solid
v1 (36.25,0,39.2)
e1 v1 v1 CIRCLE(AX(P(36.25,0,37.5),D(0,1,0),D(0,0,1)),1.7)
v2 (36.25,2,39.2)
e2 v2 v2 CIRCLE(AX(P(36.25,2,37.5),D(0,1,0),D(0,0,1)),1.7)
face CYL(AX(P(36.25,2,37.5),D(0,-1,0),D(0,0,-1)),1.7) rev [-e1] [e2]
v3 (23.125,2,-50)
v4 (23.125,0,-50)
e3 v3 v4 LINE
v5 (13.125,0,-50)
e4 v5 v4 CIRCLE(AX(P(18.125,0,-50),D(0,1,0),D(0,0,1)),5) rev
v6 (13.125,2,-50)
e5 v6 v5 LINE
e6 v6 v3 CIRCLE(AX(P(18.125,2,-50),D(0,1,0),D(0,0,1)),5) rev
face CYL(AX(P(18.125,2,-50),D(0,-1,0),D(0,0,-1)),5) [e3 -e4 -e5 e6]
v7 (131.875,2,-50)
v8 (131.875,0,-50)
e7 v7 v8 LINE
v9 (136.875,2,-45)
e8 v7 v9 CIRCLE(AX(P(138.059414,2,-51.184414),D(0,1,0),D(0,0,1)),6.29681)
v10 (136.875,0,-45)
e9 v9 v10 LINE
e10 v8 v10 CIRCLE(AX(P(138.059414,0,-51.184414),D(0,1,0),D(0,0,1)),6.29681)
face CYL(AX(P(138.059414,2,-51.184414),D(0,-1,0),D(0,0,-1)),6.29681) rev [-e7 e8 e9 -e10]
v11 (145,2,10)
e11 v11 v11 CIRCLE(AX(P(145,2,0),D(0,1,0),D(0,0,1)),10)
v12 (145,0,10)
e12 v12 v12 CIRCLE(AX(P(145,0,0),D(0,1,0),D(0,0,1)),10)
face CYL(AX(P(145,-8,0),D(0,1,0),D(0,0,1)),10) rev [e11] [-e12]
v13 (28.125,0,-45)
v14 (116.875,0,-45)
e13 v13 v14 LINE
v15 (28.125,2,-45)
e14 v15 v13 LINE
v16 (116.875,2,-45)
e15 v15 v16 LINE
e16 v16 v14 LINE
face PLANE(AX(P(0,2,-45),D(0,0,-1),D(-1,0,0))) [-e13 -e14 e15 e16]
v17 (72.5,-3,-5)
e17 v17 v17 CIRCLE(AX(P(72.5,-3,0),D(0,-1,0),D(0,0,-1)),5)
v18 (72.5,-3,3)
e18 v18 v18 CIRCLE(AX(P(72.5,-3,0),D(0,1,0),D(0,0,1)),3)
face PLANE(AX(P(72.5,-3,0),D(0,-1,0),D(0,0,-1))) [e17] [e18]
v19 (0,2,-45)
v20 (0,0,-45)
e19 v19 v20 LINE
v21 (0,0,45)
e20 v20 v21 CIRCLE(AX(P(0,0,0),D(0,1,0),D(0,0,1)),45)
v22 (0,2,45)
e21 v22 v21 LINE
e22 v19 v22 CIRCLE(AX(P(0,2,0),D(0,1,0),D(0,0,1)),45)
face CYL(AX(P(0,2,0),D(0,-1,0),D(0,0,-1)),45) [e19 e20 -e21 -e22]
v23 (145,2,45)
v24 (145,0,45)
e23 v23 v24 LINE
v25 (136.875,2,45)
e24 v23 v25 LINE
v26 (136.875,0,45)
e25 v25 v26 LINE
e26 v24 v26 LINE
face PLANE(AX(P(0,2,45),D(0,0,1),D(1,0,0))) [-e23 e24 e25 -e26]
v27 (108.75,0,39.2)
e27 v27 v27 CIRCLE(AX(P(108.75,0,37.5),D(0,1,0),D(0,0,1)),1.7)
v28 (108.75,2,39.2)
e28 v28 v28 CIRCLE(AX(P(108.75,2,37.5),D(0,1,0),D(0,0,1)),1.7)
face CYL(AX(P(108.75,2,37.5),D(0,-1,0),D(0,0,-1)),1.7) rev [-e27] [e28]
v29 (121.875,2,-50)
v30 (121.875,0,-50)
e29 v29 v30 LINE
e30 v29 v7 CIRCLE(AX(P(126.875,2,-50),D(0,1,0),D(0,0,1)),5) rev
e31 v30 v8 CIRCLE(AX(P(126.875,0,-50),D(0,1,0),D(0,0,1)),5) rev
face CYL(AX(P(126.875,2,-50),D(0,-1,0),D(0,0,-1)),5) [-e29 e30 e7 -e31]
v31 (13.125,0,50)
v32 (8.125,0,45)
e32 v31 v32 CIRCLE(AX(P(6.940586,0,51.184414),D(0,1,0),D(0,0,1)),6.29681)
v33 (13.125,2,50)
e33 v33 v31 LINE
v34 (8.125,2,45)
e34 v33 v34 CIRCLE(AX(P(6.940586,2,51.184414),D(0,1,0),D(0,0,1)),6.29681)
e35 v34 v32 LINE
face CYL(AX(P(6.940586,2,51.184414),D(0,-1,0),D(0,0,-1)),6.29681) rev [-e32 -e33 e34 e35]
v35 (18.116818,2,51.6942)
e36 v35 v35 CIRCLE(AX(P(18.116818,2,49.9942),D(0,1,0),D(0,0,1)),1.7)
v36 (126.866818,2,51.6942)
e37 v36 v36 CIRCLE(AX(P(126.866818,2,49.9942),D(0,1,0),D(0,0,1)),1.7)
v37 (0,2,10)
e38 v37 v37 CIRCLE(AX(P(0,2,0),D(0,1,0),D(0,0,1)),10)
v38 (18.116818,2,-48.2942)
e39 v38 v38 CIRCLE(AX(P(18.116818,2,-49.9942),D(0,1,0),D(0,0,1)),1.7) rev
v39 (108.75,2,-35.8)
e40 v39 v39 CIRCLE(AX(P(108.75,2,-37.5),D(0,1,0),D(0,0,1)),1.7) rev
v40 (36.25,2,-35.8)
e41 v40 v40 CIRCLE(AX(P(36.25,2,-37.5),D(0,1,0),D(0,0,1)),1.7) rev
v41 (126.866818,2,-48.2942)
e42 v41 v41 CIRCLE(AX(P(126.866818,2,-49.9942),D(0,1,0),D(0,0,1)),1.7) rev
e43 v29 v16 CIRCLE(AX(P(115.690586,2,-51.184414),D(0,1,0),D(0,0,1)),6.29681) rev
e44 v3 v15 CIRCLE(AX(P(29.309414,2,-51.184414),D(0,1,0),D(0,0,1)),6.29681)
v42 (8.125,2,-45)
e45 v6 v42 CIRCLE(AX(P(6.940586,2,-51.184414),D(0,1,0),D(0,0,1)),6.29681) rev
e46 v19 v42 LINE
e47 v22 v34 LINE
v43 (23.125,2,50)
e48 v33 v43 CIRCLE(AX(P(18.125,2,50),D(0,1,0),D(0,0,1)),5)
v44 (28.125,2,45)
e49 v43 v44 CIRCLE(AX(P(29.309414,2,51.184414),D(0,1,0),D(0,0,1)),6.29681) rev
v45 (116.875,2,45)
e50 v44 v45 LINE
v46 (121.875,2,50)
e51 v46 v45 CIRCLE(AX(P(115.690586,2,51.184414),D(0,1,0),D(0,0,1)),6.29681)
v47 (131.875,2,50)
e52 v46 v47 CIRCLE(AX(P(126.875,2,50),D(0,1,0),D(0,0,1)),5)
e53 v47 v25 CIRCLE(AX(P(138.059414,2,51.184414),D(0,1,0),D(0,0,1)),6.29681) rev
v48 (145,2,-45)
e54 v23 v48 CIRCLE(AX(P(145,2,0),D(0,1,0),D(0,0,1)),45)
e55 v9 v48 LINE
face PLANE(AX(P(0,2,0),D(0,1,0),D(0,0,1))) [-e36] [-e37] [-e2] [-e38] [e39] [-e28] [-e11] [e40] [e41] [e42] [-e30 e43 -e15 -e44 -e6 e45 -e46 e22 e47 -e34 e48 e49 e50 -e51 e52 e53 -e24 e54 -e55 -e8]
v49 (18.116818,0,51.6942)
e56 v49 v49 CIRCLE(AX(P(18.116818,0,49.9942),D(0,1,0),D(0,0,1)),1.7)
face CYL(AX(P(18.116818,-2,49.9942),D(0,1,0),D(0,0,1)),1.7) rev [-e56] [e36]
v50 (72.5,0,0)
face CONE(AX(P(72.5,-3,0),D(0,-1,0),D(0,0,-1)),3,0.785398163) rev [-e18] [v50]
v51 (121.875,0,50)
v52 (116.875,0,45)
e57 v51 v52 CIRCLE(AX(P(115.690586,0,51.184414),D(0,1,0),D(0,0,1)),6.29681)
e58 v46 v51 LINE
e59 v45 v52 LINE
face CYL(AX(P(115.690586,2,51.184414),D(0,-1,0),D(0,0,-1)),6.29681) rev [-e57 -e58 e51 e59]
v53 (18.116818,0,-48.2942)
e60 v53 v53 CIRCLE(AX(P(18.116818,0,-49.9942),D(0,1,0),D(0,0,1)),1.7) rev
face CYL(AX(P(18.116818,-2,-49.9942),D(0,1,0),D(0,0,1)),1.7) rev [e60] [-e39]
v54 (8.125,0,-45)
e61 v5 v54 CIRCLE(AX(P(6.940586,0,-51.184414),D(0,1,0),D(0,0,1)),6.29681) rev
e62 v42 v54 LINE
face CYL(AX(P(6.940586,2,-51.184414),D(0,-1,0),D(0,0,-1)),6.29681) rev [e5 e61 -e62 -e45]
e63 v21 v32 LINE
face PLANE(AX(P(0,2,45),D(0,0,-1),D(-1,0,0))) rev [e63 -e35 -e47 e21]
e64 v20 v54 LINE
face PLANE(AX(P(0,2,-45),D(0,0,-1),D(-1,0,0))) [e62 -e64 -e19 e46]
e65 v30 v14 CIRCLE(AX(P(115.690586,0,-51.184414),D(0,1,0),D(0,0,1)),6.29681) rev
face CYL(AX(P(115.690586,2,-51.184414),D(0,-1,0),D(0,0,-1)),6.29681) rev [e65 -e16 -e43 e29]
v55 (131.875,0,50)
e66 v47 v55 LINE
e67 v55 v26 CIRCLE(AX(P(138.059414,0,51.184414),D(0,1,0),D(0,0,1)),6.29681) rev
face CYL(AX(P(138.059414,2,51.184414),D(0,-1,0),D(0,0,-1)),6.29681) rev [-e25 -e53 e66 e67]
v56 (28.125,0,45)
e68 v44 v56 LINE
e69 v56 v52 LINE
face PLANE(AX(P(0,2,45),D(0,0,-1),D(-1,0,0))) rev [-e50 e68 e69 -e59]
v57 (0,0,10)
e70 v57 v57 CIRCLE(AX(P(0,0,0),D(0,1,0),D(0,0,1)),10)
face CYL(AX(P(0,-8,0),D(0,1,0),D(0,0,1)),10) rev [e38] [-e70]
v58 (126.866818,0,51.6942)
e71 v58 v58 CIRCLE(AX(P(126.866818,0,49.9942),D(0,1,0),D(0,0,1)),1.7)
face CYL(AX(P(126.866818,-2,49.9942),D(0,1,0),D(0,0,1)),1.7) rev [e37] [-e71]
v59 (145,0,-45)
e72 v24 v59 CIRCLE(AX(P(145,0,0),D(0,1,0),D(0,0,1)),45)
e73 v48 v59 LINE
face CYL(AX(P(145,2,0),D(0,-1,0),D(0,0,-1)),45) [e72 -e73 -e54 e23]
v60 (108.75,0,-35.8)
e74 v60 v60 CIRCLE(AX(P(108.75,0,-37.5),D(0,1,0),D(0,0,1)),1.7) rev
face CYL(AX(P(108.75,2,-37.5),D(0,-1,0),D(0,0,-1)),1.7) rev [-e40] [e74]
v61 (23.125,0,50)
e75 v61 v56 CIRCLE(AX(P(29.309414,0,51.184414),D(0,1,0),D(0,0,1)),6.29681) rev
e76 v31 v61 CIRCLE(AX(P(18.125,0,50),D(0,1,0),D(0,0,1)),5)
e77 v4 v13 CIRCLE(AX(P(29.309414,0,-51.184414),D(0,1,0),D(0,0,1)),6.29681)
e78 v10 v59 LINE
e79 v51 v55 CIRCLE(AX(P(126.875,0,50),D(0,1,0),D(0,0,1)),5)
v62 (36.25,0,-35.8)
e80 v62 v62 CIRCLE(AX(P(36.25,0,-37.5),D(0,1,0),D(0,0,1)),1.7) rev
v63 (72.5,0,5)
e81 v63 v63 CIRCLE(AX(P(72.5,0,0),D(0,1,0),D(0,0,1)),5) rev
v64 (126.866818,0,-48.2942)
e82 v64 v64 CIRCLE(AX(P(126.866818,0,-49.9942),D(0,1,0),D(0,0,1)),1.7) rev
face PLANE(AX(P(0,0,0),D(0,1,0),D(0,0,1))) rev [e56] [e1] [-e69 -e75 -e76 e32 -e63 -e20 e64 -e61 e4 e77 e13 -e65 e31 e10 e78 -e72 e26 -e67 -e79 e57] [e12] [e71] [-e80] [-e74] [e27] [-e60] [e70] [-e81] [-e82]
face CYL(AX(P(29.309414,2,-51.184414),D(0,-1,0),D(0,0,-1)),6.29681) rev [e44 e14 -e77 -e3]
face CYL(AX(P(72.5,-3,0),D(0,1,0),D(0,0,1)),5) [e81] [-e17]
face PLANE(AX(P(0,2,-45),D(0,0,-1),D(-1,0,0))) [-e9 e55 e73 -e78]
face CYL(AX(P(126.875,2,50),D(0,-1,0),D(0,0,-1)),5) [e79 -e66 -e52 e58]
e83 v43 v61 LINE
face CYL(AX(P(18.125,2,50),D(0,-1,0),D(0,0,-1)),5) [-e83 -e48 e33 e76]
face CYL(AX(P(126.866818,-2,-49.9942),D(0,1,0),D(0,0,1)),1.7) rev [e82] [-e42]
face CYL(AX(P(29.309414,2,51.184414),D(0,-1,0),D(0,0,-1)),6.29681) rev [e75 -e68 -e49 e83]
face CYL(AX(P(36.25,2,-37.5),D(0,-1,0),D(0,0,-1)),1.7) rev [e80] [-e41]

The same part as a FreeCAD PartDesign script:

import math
import FreeCAD as App
import Part
import Sketcher
from FreeCAD import Vector
Q = App.Units.Quantity

doc = App.newDocument("Part")
body = doc.addObject("PartDesign::Body", "Body")

# Sketch on XZ plane
sketch1 = doc.addObject("Sketcher::SketchObject", "Sketch")
body.addObject(sketch1)
sketch1.AttachmentSupport = (doc.XZ_Plane, [""])
sketch1.MapMode = "FlatFace"
sketch1.addGeometry(Part.LineSegment(Vector(8.1, -45, 0), Vector(0, -45, 0)), False)
sketch1.addGeometry(Part.ArcOfCircle(Part.Circle(Vector(0, 0, 0), Vector(0, 0, 1), 45), math.radians(90), math.radians(270)), False)
sketch1.addGeometry(Part.LineSegment(Vector(0, 45, 0), Vector(8.1, 45, 0)), False)
sketch1.addGeometry(Part.ArcOfCircle(Part.Circle(Vector(6.9, 51.2, 0), Vector(0, 0, 1), 6.3), math.radians(-79), math.radians(-11)), False)
sketch1.addGeometry(Part.ArcOfCircle(Part.Circle(Vector(18.1, 50, 0), Vector(0, 0, 1), 5), math.radians(0), math.radians(180)), False)
sketch1.addGeometry(Part.ArcOfCircle(Part.Circle(Vector(29.3, 51.2, 0), Vector(0, 0, 1), 6.3), math.radians(-169), math.radians(-101)), False)
sketch1.addGeometry(Part.LineSegment(Vector(28.1, 45, 0), Vector(116.9, 45, 0)), False)
sketch1.addGeometry(Part.ArcOfCircle(Part.Circle(Vector(115.7, 51.2, 0), Vector(0, 0, 1), 6.3), math.radians(-79), math.radians(-11)), False)
sketch1.addGeometry(Part.ArcOfCircle(Part.Circle(Vector(126.9, 50, 0), Vector(0, 0, 1), 5), math.radians(0), math.radians(180)), False)
sketch1.addGeometry(Part.ArcOfCircle(Part.Circle(Vector(138.1, 51.2, 0), Vector(0, 0, 1), 6.3), math.radians(-169), math.radians(-101)), False)
sketch1.addGeometry(Part.LineSegment(Vector(136.9, 45, 0), Vector(145, 45, 0)), False)
sketch1.addGeometry(Part.ArcOfCircle(Part.Circle(Vector(145, 0, 0), Vector(0, 0, 1), 45), math.radians(-90), math.radians(90)), False)
sketch1.addGeometry(Part.LineSegment(Vector(145, -45, 0), Vector(136.9, -45, 0)), False)
sketch1.addGeometry(Part.ArcOfCircle(Part.Circle(Vector(138.1, -51.2, 0), Vector(0, 0, 1), 6.3), math.radians(101), math.radians(169)), False)
sketch1.addGeometry(Part.ArcOfCircle(Part.Circle(Vector(126.9, -50, 0), Vector(0, 0, 1), 5), math.radians(180), math.radians(360)), False)
sketch1.addGeometry(Part.ArcOfCircle(Part.Circle(Vector(115.7, -51.2, 0), Vector(0, 0, 1), 6.3), math.radians(11), math.radians(79)), False)
sketch1.addGeometry(Part.LineSegment(Vector(116.9, -45, 0), Vector(28.1, -45, 0)), False)
sketch1.addGeometry(Part.ArcOfCircle(Part.Circle(Vector(29.3, -51.2, 0), Vector(0, 0, 1), 6.3), math.radians(101), math.radians(169)), False)
sketch1.addGeometry(Part.ArcOfCircle(Part.Circle(Vector(18.1, -50, 0), Vector(0, 0, 1), 5), math.radians(180), math.radians(360)), False)
sketch1.addGeometry(Part.ArcOfCircle(Part.Circle(Vector(6.9, -51.2, 0), Vector(0, 0, 1), 6.3), math.radians(11), math.radians(79)), False)
sketch1.addGeometry(Part.Circle(Vector(108.8, 37.5, 0), Vector(0, 0, 1), 1.7), False)
sketch1.addGeometry(Part.Circle(Vector(36.2, 37.5, 0), Vector(0, 0, 1), 1.7), False)
sketch1.addGeometry(Part.Circle(Vector(108.8, -37.5, 0), Vector(0, 0, 1), 1.7), False)
sketch1.addGeometry(Part.Circle(Vector(36.2, -37.5, 0), Vector(0, 0, 1), 1.7), False)
sketch1.addConstraint(Sketcher.Constraint("Tangent", 0, 2, 1, 2))
sketch1.addConstraint(Sketcher.Constraint("Tangent", 1, 1, 2, 1))
sketch1.addConstraint(Sketcher.Constraint("Coincident", 2, 2, 3, 1))
sketch1.addConstraint(Sketcher.Constraint("Coincident", 3, 2, 4, 2))
sketch1.addConstraint(Sketcher.Constraint("Coincident", 4, 1, 5, 1))
sketch1.addConstraint(Sketcher.Constraint("Coincident", 5, 2, 6, 1))
sketch1.addConstraint(Sketcher.Constraint("Coincident", 6, 2, 7, 1))
sketch1.addConstraint(Sketcher.Constraint("Coincident", 7, 2, 8, 2))
sketch1.addConstraint(Sketcher.Constraint("Coincident", 8, 1, 9, 1))
sketch1.addConstraint(Sketcher.Constraint("Coincident", 9, 2, 10, 1))
sketch1.addConstraint(Sketcher.Constraint("Tangent", 10, 2, 11, 2))
sketch1.addConstraint(Sketcher.Constraint("Tangent", 11, 1, 12, 1))
sketch1.addConstraint(Sketcher.Constraint("Coincident", 12, 2, 13, 1))
sketch1.addConstraint(Sketcher.Constraint("Coincident", 13, 2, 14, 2))
sketch1.addConstraint(Sketcher.Constraint("Coincident", 14, 1, 15, 1))
sketch1.addConstraint(Sketcher.Constraint("Coincident", 15, 2, 16, 1))
sketch1.addConstraint(Sketcher.Constraint("Coincident", 16, 2, 17, 1))
sketch1.addConstraint(Sketcher.Constraint("Coincident", 17, 2, 18, 2))
sketch1.addConstraint(Sketcher.Constraint("Coincident", 18, 1, 19, 1))
sketch1.addConstraint(Sketcher.Constraint("Coincident", 19, 2, 0, 1))
sketch1.addConstraint(Sketcher.Constraint("Horizontal", 0))
sketch1.addConstraint(Sketcher.Constraint("Horizontal", 2))
sketch1.addConstraint(Sketcher.Constraint("Horizontal", 6))
sketch1.addConstraint(Sketcher.Constraint("Horizontal", 10))
sketch1.addConstraint(Sketcher.Constraint("Horizontal", 12))
sketch1.addConstraint(Sketcher.Constraint("Horizontal", 16))
sketch1.addConstraint(Sketcher.Constraint("Coincident", 1, 3, -1, 1))
sketch1.addConstraint(Sketcher.Constraint("Equal", 3, 5))
sketch1.addConstraint(Sketcher.Constraint("Equal", 5, 7))
sketch1.addConstraint(Sketcher.Constraint("Equal", 4, 8))
sketch1.addConstraint(Sketcher.Constraint("Equal", 7, 9))
sketch1.addConstraint(Sketcher.Constraint("Equal", 1, 11))
sketch1.addConstraint(Sketcher.Constraint("Equal", 9, 13))
sketch1.addConstraint(Sketcher.Constraint("Equal", 8, 14))
sketch1.addConstraint(Sketcher.Constraint("Equal", 13, 15))
sketch1.addConstraint(Sketcher.Constraint("Equal", 15, 17))
sketch1.addConstraint(Sketcher.Constraint("Equal", 14, 18))
sketch1.addConstraint(Sketcher.Constraint("Equal", 17, 19))
sketch1.addConstraint(Sketcher.Constraint("Equal", 20, 21))
sketch1.addConstraint(Sketcher.Constraint("Equal", 21, 22))
sketch1.addConstraint(Sketcher.Constraint("Equal", 22, 23))
sketch1.addConstraint(Sketcher.Constraint("Symmetric", 9, 3, 13, 3, -1))
sketch1.addConstraint(Sketcher.Constraint("Symmetric", 8, 3, 14, 3, -1))
sketch1.addConstraint(Sketcher.Constraint("Symmetric", 7, 3, 15, 3, -1))
sketch1.addConstraint(Sketcher.Constraint("Symmetric", 5, 3, 17, 3, -1))
sketch1.addConstraint(Sketcher.Constraint("Symmetric", 4, 3, 18, 3, -1))
sketch1.addConstraint(Sketcher.Constraint("Symmetric", 3, 3, 19, 3, -1))
sketch1.addConstraint(Sketcher.Constraint("Symmetric", 20, 3, 22, 3, -1))
sketch1.addConstraint(Sketcher.Constraint("Symmetric", 21, 3, 23, 3, -1))
sketch1.addConstraint(Sketcher.Constraint("PointOnObject", 11, 3, -1))
sketch1.addConstraint(Sketcher.Constraint("Horizontal", 3, 3, 5, 3))
sketch1.addConstraint(Sketcher.Constraint("Horizontal", 5, 3, 7, 3))
sketch1.addConstraint(Sketcher.Constraint("Horizontal", 4, 3, 8, 3))
sketch1.addConstraint(Sketcher.Constraint("Horizontal", 7, 3, 9, 3))
sketch1.addConstraint(Sketcher.Constraint("Horizontal", 20, 3, 21, 3))
sketch1.addConstraint(Sketcher.Constraint("Horizontal", 8, 3, 3, 2))
sketch1.addConstraint(Sketcher.Constraint("Horizontal", 3, 2, 4, 1))
sketch1.addConstraint(Sketcher.Constraint("Horizontal", 2, 2, 5, 2))
sketch1.addConstraint(Sketcher.Constraint("Horizontal", 4, 1, 7, 2))
sketch1.addConstraint(Sketcher.Constraint("Horizontal", 7, 2, 8, 1))
sketch1.addConstraint(Sketcher.Constraint("Horizontal", 12, 2, 15, 2))
sketch1.addConstraint(Sketcher.Constraint("Equal", 2, 10))
sketch1.addConstraint(Sketcher.Constraint("Radius", 1, Q("45 mm")))
sketch1.addConstraint(Sketcher.Constraint("Radius", 4, Q("5 mm")))
sketch1.addConstraint(Sketcher.Constraint("Diameter", 20, Q("3.4 mm")))
sketch1.addConstraint(Sketcher.Constraint("DistanceY", -1, 1, 4, 3, Q("50 mm")))
sketch1.addConstraint(Sketcher.Constraint("DistanceX", -1, 1, 11, 3, Q("145 mm")))
sketch1.addConstraint(Sketcher.Constraint("DistanceY", 22, 3, 20, 3, Q("75 mm")))
sketch1.addConstraint(Sketcher.Constraint("DistanceX", 2, 2, 4, 3, Q("10 mm")))
sketch1.addConstraint(Sketcher.Constraint("DistanceX", 6, 1, 6, 2, Q("88.75 mm")))
sketch1.addConstraint(Sketcher.Constraint("DistanceX", 21, 3, 20, 3, Q("72.5 mm")))
sketch1.addConstraint(Sketcher.Constraint("DistanceX", -1, 1, 20, 3, Q("108.75 mm")))
sketch1.addConstraint(Sketcher.Constraint("Radius", 3, Q("6.29681 mm")))
pad1 = doc.addObject("PartDesign::Pad", "Pad")
body.addObject(pad1)
pad1.Profile = sketch1
pad1.Length = 2
pad1.Reversed = True

# Sketch on XZ plane
sketch2 = doc.addObject("Sketcher::SketchObject", "Sketch001")
body.addObject(sketch2)
sketch2.AttachmentSupport = (doc.XZ_Plane, [""])
sketch2.MapMode = "FlatFace"
sketch2.AttachmentOffset = App.Placement(Vector(0, 0, -2), App.Rotation())
sketch2.addGeometry(Part.Circle(Vector(18.1, 50, 0), Vector(0, 0, 1), 1.7), False)
sketch2.addGeometry(Part.Circle(Vector(126.9, 50, 0), Vector(0, 0, 1), 1.7), False)
sketch2.addGeometry(Part.Circle(Vector(126.9, -50, 0), Vector(0, 0, 1), 1.7), False)
sketch2.addGeometry(Part.Circle(Vector(18.1, -50, 0), Vector(0, 0, 1), 1.7), False)
sketch2.addConstraint(Sketcher.Constraint("Equal", 0, 1))
sketch2.addConstraint(Sketcher.Constraint("Equal", 1, 2))
sketch2.addConstraint(Sketcher.Constraint("Equal", 2, 3))
sketch2.addConstraint(Sketcher.Constraint("Symmetric", 1, 3, 2, 3, -1))
sketch2.addConstraint(Sketcher.Constraint("Symmetric", 0, 3, 3, 3, -1))
sketch2.addConstraint(Sketcher.Constraint("Horizontal", 0, 3, 1, 3))
sketch2.addConstraint(Sketcher.Constraint("Diameter", 0, Q("3.4 mm")))
sketch2.addConstraint(Sketcher.Constraint("DistanceX", 0, 3, 1, 3, Q("108.75 mm")))
sketch2.addConstraint(Sketcher.Constraint("DistanceY", -1, 1, 0, 3, Q("49.9942 mm")))
sketch2.addConstraint(Sketcher.Constraint("DistanceX", -1, 1, 0, 3, Q("18.116818 mm")))
pocket1 = doc.addObject("PartDesign::Pocket", "Pocket")
body.addObject(pocket1)
pocket1.Profile = sketch2
pocket1.Length = 4
pocket1.Reversed = True

# Sketch on XZ plane
sketch3 = doc.addObject("Sketcher::SketchObject", "Sketch002")
body.addObject(sketch3)
sketch3.AttachmentSupport = (doc.XZ_Plane, [""])
sketch3.MapMode = "FlatFace"
sketch3.AttachmentOffset = App.Placement(Vector(0, 0, -2), App.Rotation())
sketch3.addGeometry(Part.Circle(Vector(0, 0, 0), Vector(0, 0, 1), 10), False)
sketch3.addGeometry(Part.Circle(Vector(145, 0, 0), Vector(0, 0, 1), 10), False)
sketch3.addConstraint(Sketcher.Constraint("Coincident", 0, 3, -1, 1))
sketch3.addConstraint(Sketcher.Constraint("Equal", 0, 1))
sketch3.addConstraint(Sketcher.Constraint("PointOnObject", 1, 3, -1))
sketch3.addConstraint(Sketcher.Constraint("Diameter", 0, Q("20 mm")))
sketch3.addConstraint(Sketcher.Constraint("DistanceX", -1, 1, 1, 3, Q("145 mm")))
pocket2 = doc.addObject("PartDesign::Pocket", "Pocket001")
body.addObject(pocket2)
pocket2.Profile = sketch3
pocket2.Length = 10
pocket2.Reversed = True

# Sketch on XZ plane
sketch4 = doc.addObject("Sketcher::SketchObject", "Sketch003")
body.addObject(sketch4)
sketch4.AttachmentSupport = (doc.XZ_Plane, [""])
sketch4.MapMode = "FlatFace"
sketch4.addGeometry(Part.Circle(Vector(72, 0, 0), Vector(0, 0, 1), 5), False)
sketch4.addConstraint(Sketcher.Constraint("PointOnObject", 0, 3, -1))
sketch4.addConstraint(Sketcher.Constraint("Diameter", 0, Q("10 mm")))
sketch4.addConstraint(Sketcher.Constraint("DistanceX", -1, 1, 0, 3, Q("72.5 mm")))
pad2 = doc.addObject("PartDesign::Pad", "Pad001")
body.addObject(pad2)
pad2.Profile = sketch4
pad2.Length = 3

# Sketch on YZ plane
sketch5 = doc.addObject("Sketcher::SketchObject", "Sketch004")
body.addObject(sketch5)
sketch5.AttachmentSupport = (doc.YZ_Plane, [""])
sketch5.MapMode = "FlatFace"
sketch5.AttachmentOffset = App.Placement(Vector(0, 0, 72.5), App.Rotation())
sketch5.addGeometry(Part.LineSegment(Vector(-3, 0, 0), Vector(0, 0, 0)), False)
sketch5.addGeometry(Part.LineSegment(Vector(0, 0, 0), Vector(-3, -3, 0)), False)
sketch5.addGeometry(Part.LineSegment(Vector(-3, -3, 0), Vector(-3, 0, 0)), False)
sketch5.addConstraint(Sketcher.Constraint("Coincident", 0, 2, 1, 1))
sketch5.addConstraint(Sketcher.Constraint("Coincident", 1, 2, 2, 1))
sketch5.addConstraint(Sketcher.Constraint("Coincident", 2, 2, 0, 1))
sketch5.addConstraint(Sketcher.Constraint("Horizontal", 0))
sketch5.addConstraint(Sketcher.Constraint("Vertical", 2))
sketch5.addConstraint(Sketcher.Constraint("Coincident", 0, 2, -1, 1))
sketch5.addConstraint(Sketcher.Constraint("Equal", 0, 2))
sketch5.addConstraint(Sketcher.Constraint("DistanceX", 0, 1, 0, 2, Q("3 mm")))
groove = doc.addObject("PartDesign::Groove", "Groove")
body.addObject(groove)
groove.Profile = sketch5
groove.ReferenceAxis = (sketch5, ["H_Axis"])
groove.Angle = 360

doc.recompute()
